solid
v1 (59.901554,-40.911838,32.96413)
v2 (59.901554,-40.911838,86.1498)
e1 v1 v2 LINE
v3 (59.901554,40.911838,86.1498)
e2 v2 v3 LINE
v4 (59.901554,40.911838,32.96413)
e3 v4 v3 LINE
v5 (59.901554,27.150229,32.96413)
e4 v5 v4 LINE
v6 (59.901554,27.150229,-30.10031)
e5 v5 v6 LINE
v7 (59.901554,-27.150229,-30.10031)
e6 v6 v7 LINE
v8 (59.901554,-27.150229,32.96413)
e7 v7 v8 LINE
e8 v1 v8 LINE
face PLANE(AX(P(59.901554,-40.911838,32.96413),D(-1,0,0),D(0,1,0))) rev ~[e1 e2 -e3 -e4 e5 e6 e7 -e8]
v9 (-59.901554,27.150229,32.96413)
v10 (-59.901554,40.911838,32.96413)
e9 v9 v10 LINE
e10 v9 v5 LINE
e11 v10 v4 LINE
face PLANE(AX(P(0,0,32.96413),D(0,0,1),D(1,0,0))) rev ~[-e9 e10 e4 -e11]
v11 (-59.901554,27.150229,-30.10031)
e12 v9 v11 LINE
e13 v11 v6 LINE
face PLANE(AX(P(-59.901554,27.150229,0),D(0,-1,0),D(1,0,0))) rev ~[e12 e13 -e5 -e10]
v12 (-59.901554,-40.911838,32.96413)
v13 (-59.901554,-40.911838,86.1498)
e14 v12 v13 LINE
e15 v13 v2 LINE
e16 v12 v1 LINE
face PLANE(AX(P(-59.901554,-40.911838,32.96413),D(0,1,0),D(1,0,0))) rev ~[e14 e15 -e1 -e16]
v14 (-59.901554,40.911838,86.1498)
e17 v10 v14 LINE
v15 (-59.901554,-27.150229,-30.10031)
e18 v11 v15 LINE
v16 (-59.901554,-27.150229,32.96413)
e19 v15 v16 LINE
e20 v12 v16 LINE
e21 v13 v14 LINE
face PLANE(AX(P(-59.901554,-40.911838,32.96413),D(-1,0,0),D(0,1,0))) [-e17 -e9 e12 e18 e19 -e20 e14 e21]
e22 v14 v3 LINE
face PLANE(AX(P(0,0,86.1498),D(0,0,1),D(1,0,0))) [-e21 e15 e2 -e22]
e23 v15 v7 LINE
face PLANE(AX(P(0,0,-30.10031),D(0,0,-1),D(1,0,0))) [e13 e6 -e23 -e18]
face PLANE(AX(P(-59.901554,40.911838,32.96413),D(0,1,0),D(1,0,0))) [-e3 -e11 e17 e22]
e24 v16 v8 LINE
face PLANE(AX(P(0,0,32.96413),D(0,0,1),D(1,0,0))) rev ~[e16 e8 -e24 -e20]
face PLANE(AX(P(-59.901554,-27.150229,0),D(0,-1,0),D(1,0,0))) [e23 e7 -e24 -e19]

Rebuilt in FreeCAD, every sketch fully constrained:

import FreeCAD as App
import Part
import Sketcher
from FreeCAD import Vector
Q = App.Units.Quantity


def add_polygon(sketch, points):
    """Adds a closed chain of lines whose ends are joined by coincident constraints."""
    first, n = sketch.GeometryCount, len(points)
    for a, b in zip(points, points[1:] + points[:1]):
        sketch.addGeometry(Part.LineSegment(App.Vector(*a, 0), App.Vector(*b, 0)), False)
    for i in range(n):
        sketch.addConstraint(Sketcher.Constraint("Coincident", first + i, 2, first + (i + 1) % n, 1))

doc = App.newDocument("Part")
body = doc.addObject("PartDesign::Body", "Body")

# Sketch on XY plane
sketch1 = doc.addObject("Sketcher::SketchObject", "Sketch")
body.addObject(sketch1)
sketch1.AttachmentSupport = (doc.XY_Plane, [""])
sketch1.MapMode = "FlatFace"
add_polygon(sketch1, [(-59.901554, 27.150229), (-59.901554, -27.150229), (59.901554, -27.150229), (59.901554, 27.150229)])  # lines 0-3
sketch1.addConstraint(Sketcher.Constraint("Vertical", 0))
sketch1.addConstraint(Sketcher.Constraint("Horizontal", 1))
sketch1.addConstraint(Sketcher.Constraint("Vertical", 2))
sketch1.addConstraint(Sketcher.Constraint("Horizontal", 3))
sketch1.addConstraint(Sketcher.Constraint("Symmetric", 0, 2, 2, 2, -1, 1))
sketch1.addConstraint(Sketcher.Constraint("DistanceX", 1, 1, 1, 2, Q("119.803108 mm")))
sketch1.addConstraint(Sketcher.Constraint("DistanceY", 0, 2, 0, 1, Q("54.300458 mm")))
pad1 = doc.addObject("PartDesign::Pad", "Pad")
body.addObject(pad1)
pad1.Profile = sketch1
pad1.Length = 32.96413

# Sketch on XY plane
sketch2 = doc.addObject("Sketcher::SketchObject", "Sketch001")
body.addObject(sketch2)
sketch2.AttachmentSupport = (doc.XY_Plane, [""])
sketch2.MapMode = "FlatFace"
add_polygon(sketch2, [(-59.901554, -27.150229), (-59.901554, 27.150229), (59.901554, 27.150229), (59.901554, -27.150229)])  # lines 0-3
sketch2.addConstraint(Sketcher.Constraint("Vertical", 0))
sketch2.addConstraint(Sketcher.Constraint("Horizontal", 1))
sketch2.addConstraint(Sketcher.Constraint("Vertical", 2))
sketch2.addConstraint(Sketcher.Constraint("Horizontal", 3))
sketch2.addConstraint(Sketcher.Constraint("Symmetric", 0, 2, 2, 2, -1, 1))
sketch2.addConstraint(Sketcher.Constraint("DistanceX", 1, 1, 1, 2, Q("119.803108 mm")))
sketch2.addConstraint(Sketcher.Constraint("DistanceY", 0, 1, 0, 2, Q("54.300458 mm")))
pad2 = doc.addObject("PartDesign::Pad", "Pad001")
body.addObject(pad2)
pad2.Profile = sketch2
pad2.Length = 30.10031
pad2.Reversed = True

# Sketch on XY plane
sketch3 = doc.addObject("Sketcher::SketchObject", "Sketch002")
body.addObject(sketch3)
sketch3.AttachmentSupport = (doc.XY_Plane, [""])
sketch3.MapMode = "FlatFace"
sketch3.AttachmentOffset = App.Placement(Vector(0, 0, 32.96413), App.Rotation())
add_polygon(sketch3, [(-59.901554, 40.911838), (-59.901554, -40.911838), (59.901554, -40.911838), (59.901554, 40.911838)])  # lines 0-3
sketch3.addConstraint(Sketcher.Constraint("Vertical", 0))
sketch3.addConstraint(Sketcher.Constraint("Horizontal", 1))
sketch3.addConstraint(Sketcher.Constraint("Vertical", 2))
sketch3.addConstraint(Sketcher.Constraint("Horizontal", 3))
sketch3.addConstraint(Sketcher.Constraint("Symmetric", 0, 2, 2, 2, -1, 1))
sketch3.addConstraint(Sketcher.Constraint("DistanceX", 1, 1, 1, 2, Q("119.803108 mm")))
sketch3.addConstraint(Sketcher.Constraint("DistanceY", 0, 2, 0, 1, Q("81.823676 mm")))
pad3 = doc.addObject("PartDesign::Pad", "Pad002")
body.addObject(pad3)
pad3.Profile = sketch3
pad3.Length = 53.18567

doc.recompute()
